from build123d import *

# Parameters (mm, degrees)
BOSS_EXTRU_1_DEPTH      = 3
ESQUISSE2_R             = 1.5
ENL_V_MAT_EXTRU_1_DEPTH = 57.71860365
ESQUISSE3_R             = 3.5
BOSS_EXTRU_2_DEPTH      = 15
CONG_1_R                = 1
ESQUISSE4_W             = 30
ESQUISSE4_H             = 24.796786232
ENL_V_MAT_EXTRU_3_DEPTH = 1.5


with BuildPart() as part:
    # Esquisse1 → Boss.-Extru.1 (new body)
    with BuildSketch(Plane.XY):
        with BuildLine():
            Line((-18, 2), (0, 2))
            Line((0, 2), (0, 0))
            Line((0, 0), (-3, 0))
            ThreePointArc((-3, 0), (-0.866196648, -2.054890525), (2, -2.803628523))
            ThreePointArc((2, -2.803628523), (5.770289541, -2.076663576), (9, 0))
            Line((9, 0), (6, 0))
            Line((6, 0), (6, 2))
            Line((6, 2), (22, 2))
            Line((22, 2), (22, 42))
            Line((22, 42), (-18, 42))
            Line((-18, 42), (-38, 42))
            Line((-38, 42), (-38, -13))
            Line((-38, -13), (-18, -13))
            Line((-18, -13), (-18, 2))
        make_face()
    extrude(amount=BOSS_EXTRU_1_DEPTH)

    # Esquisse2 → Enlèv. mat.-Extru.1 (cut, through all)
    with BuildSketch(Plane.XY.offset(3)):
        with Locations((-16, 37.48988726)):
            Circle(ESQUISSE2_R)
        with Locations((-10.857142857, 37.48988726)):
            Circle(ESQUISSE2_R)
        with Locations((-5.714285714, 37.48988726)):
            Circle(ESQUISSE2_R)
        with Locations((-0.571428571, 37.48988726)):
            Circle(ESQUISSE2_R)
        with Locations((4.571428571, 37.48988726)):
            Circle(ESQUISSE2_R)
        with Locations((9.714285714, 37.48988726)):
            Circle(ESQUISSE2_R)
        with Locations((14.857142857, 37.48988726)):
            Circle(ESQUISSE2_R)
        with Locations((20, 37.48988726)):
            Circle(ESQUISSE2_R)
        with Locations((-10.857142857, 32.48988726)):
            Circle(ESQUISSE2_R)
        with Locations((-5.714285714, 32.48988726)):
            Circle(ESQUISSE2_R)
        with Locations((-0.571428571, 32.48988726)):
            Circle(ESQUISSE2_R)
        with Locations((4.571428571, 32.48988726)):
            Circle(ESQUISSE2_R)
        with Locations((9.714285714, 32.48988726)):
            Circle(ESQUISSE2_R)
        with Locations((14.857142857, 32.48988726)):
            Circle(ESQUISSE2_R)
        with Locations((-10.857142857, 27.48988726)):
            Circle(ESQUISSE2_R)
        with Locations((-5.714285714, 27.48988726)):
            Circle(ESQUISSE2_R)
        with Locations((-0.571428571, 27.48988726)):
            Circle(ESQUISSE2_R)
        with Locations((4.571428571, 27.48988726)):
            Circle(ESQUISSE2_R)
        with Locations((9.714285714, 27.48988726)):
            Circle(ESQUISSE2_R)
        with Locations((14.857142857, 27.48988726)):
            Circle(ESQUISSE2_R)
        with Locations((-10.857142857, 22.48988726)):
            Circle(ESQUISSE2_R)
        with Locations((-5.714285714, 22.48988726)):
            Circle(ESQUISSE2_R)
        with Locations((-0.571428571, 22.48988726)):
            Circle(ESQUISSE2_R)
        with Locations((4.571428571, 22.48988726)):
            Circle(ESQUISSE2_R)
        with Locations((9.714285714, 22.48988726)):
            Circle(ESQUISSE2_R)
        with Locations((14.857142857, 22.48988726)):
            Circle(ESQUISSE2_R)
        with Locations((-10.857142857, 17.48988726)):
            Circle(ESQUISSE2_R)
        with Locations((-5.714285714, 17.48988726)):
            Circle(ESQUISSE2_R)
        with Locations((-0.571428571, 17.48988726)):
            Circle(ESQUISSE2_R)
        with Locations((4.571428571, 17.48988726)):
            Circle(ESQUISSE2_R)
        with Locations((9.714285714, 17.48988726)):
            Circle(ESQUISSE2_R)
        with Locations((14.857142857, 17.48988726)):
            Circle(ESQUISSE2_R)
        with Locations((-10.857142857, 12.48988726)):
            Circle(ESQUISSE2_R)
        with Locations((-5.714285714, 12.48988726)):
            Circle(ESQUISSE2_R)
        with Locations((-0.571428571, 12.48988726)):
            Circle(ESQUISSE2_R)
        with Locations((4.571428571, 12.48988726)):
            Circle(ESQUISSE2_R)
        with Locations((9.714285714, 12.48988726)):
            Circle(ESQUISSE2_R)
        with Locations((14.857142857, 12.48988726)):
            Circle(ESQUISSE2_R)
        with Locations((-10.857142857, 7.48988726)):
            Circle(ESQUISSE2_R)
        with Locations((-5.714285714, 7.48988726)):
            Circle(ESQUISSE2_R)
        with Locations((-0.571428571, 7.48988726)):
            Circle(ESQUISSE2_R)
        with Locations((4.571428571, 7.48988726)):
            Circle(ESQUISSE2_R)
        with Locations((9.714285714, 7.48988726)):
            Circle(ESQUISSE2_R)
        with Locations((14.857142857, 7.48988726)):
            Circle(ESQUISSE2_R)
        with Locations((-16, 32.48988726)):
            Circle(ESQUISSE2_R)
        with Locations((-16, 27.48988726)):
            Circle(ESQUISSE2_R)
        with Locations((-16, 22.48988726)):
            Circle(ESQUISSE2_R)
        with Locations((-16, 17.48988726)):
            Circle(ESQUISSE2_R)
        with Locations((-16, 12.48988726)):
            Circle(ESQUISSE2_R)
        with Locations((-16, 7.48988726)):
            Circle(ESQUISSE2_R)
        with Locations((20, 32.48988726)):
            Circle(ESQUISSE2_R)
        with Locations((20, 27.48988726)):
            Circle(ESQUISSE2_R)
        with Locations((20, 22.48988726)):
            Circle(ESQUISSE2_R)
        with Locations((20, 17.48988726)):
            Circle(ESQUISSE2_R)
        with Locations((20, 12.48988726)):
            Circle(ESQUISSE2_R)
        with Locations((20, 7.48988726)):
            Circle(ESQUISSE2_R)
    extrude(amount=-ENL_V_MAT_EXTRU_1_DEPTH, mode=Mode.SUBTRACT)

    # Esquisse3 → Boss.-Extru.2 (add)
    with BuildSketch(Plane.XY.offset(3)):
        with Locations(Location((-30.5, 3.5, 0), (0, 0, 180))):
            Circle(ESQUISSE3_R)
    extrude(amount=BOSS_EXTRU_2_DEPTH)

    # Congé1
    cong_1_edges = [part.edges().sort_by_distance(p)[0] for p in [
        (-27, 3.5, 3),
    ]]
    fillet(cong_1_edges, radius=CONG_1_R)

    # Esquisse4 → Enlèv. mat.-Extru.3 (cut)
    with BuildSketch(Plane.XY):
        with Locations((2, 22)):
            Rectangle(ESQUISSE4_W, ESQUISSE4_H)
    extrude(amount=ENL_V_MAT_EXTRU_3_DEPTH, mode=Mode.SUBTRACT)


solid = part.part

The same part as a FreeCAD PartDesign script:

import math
import FreeCAD as App
import Part
import Sketcher
from FreeCAD import Vector


def edges_at(feature, points):
    """Names of the edges that pass closest to the given points."""
    edges = feature.Shape.Edges
    near = lambda p: min(range(len(edges)), key=lambda i: edges[i].distToShape(Part.Vertex(*p))[0])
    return sorted({f"Edge{near(p) + 1}" for p in points})


def add_polygon(sketch, points):
    """Adds a closed chain of lines whose ends are joined by coincident constraints."""
    first, n = sketch.GeometryCount, len(points)
    for a, b in zip(points, points[1:] + points[:1]):
        sketch.addGeometry(Part.LineSegment(App.Vector(*a, 0), App.Vector(*b, 0)), False)
    for i in range(n):
        sketch.addConstraint(Sketcher.Constraint("Coincident", first + i, 2, first + (i + 1) % n, 1))

doc = App.newDocument("Part")
body = doc.addObject("PartDesign::Body", "Body")

# Sketch on XY plane
sketch1 = body.newObject("Sketcher::SketchObject", "Sketch")
sketch1.AttachmentSupport = (doc.getObject("XY_Plane"), [""])
sketch1.MapMode = "FlatFace"
sketch1.addGeometry([
    Part.LineSegment(Vector(-18, 2, 0), Vector(0, 2, 0)),  # 0
    Part.LineSegment(Vector(0, 2, 0), Vector(0, 0, 0)),  # 1
    Part.LineSegment(Vector(0, 0, 0), Vector(-3, 0, 0)),  # 2
    Part.ArcOfCircle(Part.Circle(Vector(2, 3.1, 0), Vector(0, 0, 1), 5.9), math.radians(-149), math.radians(-90)),  # 3
    Part.ArcOfCircle(Part.Circle(Vector(2, 7.3, 0), Vector(0, 0, 1), 10.1), math.radians(-90), math.radians(-46)),  # 4
    Part.LineSegment(Vector(9, 0, 0), Vector(6, 0, 0)),  # 5
    Part.LineSegment(Vector(6, 0, 0), Vector(6, 2, 0)),  # 6
    Part.LineSegment(Vector(6, 2, 0), Vector(22, 2, 0)),  # 7
    Part.LineSegment(Vector(22, 2, 0), Vector(22, 42, 0)),  # 8
    Part.LineSegment(Vector(22, 42, 0), Vector(-38, 42, 0)),  # 9
    Part.LineSegment(Vector(-38, 42, 0), Vector(-38, -13, 0)),  # 10
    Part.LineSegment(Vector(-38, -13, 0), Vector(-18, -13, 0)),  # 11
    Part.LineSegment(Vector(-18, -13, 0), Vector(-18, 2, 0)),  # 12
], False)
sketch1.addConstraint([
    Sketcher.Constraint("Coincident", 0, 2, 1, 1),
    Sketcher.Constraint("Coincident", 1, 2, 2, 1),
    Sketcher.Constraint("Coincident", 2, 2, 3, 1),
    Sketcher.Constraint("Tangent", 3, 2, 4, 1),
    Sketcher.Constraint("Coincident", 4, 2, 5, 1),
    Sketcher.Constraint("Coincident", 5, 2, 6, 1),
    Sketcher.Constraint("Coincident", 6, 2, 7, 1),
    Sketcher.Constraint("Coincident", 7, 2, 8, 1),
    Sketcher.Constraint("Coincident", 8, 2, 9, 1),
    Sketcher.Constraint("Coincident", 9, 2, 10, 1),
    Sketcher.Constraint("Coincident", 10, 2, 11, 1),
    Sketcher.Constraint("Coincident", 11, 2, 12, 1),
    Sketcher.Constraint("Coincident", 12, 2, 0, 1),
    Sketcher.Constraint("Horizontal", 0),
    Sketcher.Constraint("Vertical", 1),
    Sketcher.Constraint("Horizontal", 2),
    Sketcher.Constraint("Horizontal", 5),
    Sketcher.Constraint("Vertical", 6),
    Sketcher.Constraint("Horizontal", 7),
    Sketcher.Constraint("Vertical", 8),
    Sketcher.Constraint("Horizontal", 9),
    Sketcher.Constraint("Vertical", 10),
    Sketcher.Constraint("Horizontal", 11),
    Sketcher.Constraint("Vertical", 12),
    Sketcher.Constraint("Coincident", 1, 2, -1, 1),
    Sketcher.Constraint("PointOnObject", 4, 2, -1),
    Sketcher.Constraint("Horizontal", 0, 2, 6, 2),
    Sketcher.Constraint("Vertical", 3, 3, 4, 3),
    Sketcher.Constraint("Equal", 2, 5),
    Sketcher.Constraint("DistanceX", 0, 1, 0, 2, 18.0),
    Sketcher.Constraint("DistanceX", 2, 2, 2, 1, 3.0),
    Sketcher.Constraint("DistanceX", 7, 1, 7, 2, 16.0),
    Sketcher.Constraint("DistanceX", 9, 2, 9, 1, 60.0),
    Sketcher.Constraint("DistanceX", 11, 1, 11, 2, 20.0),
    Sketcher.Constraint("DistanceY", 1, 2, 1, 1, 2.0),
    Sketcher.Constraint("DistanceY", 8, 1, 8, 2, 40.0),
    Sketcher.Constraint("DistanceY", 10, 2, 10, 1, 55.0),
    Sketcher.Constraint("DistanceX", -1, 1, 3, 3, 2.0),
    Sketcher.Constraint("Radius", 4, 10.14049),
])
pad1 = body.newObject("PartDesign::Pad", "Pad")
pad1.Profile = sketch1
pad1.Length = 3

# Sketch on XY plane
sketch2 = body.newObject("Sketcher::SketchObject", "Sketch001")
sketch2.AttachmentSupport = (doc.getObject("XY_Plane"), [""])
sketch2.MapMode = "FlatFace"
sketch2.AttachmentOffset = App.Placement(Vector(0, 0, 3), App.Rotation())
sketch2.addGeometry([
    Part.Circle(Vector(-16, 37.5, 0), Vector(0, 0, 1), 1.5),  # 0
    Part.Circle(Vector(-10.9, 37.5, 0), Vector(0, 0, 1), 1.5),  # 1
    Part.Circle(Vector(-5.7, 37.5, 0), Vector(0, 0, 1), 1.5),  # 2
    Part.Circle(Vector(-0.6, 37.5, 0), Vector(0, 0, 1), 1.5),  # 3
    Part.Circle(Vector(4.6, 37.5, 0), Vector(0, 0, 1), 1.5),  # 4
    Part.Circle(Vector(9.7, 37.5, 0), Vector(0, 0, 1), 1.5),  # 5
    Part.Circle(Vector(14.9, 37.5, 0), Vector(0, 0, 1), 1.5),  # 6
    Part.Circle(Vector(20, 37.5, 0), Vector(0, 0, 1), 1.5),  # 7
    Part.Circle(Vector(-10.9, 32.5, 0), Vector(0, 0, 1), 1.5),  # 8
    Part.Circle(Vector(-5.7, 32.5, 0), Vector(0, 0, 1), 1.5),  # 9
    Part.Circle(Vector(-0.6, 32.5, 0), Vector(0, 0, 1), 1.5),  # 10
    Part.Circle(Vector(4.6, 32.5, 0), Vector(0, 0, 1), 1.5),  # 11
    Part.Circle(Vector(9.7, 32.5, 0), Vector(0, 0, 1), 1.5),  # 12
    Part.Circle(Vector(14.9, 32.5, 0), Vector(0, 0, 1), 1.5),  # 13
    Part.Circle(Vector(-10.9, 27.5, 0), Vector(0, 0, 1), 1.5),  # 14
    Part.Circle(Vector(-5.7, 27.5, 0), Vector(0, 0, 1), 1.5),  # 15
    Part.Circle(Vector(-0.6, 27.5, 0), Vector(0, 0, 1), 1.5),  # 16
    Part.Circle(Vector(4.6, 27.5, 0), Vector(0, 0, 1), 1.5),  # 17
    Part.Circle(Vector(9.7, 27.5, 0), Vector(0, 0, 1), 1.5),  # 18
    Part.Circle(Vector(14.9, 27.5, 0), Vector(0, 0, 1), 1.5),  # 19
    Part.Circle(Vector(-10.9, 22.5, 0), Vector(0, 0, 1), 1.5),  # 20
    Part.Circle(Vector(-5.7, 22.5, 0), Vector(0, 0, 1), 1.5),  # 21
    Part.Circle(Vector(-0.6, 22.5, 0), Vector(0, 0, 1), 1.5),  # 22
    Part.Circle(Vector(4.6, 22.5, 0), Vector(0, 0, 1), 1.5),  # 23
    Part.Circle(Vector(9.7, 22.5, 0), Vector(0, 0, 1), 1.5),  # 24
    Part.Circle(Vector(14.9, 22.5, 0), Vector(0, 0, 1), 1.5),  # 25
    Part.Circle(Vector(-10.9, 17.5, 0), Vector(0, 0, 1), 1.5),  # 26
    Part.Circle(Vector(-5.7, 17.5, 0), Vector(0, 0, 1), 1.5),  # 27
    Part.Circle(Vector(-0.6, 17.5, 0), Vector(0, 0, 1), 1.5),  # 28
    Part.Circle(Vector(4.6, 17.5, 0), Vector(0, 0, 1), 1.5),  # 29
    Part.Circle(Vector(9.7, 17.5, 0), Vector(0, 0, 1), 1.5),  # 30
    Part.Circle(Vector(14.9, 17.5, 0), Vector(0, 0, 1), 1.5),  # 31
    Part.Circle(Vector(-10.9, 12.5, 0), Vector(0, 0, 1), 1.5),  # 32
    Part.Circle(Vector(-5.7, 12.5, 0), Vector(0, 0, 1), 1.5),  # 33
    Part.Circle(Vector(-0.6, 12.5, 0), Vector(0, 0, 1), 1.5),  # 34
    Part.Circle(Vector(4.6, 12.5, 0), Vector(0, 0, 1), 1.5),  # 35
    Part.Circle(Vector(9.7, 12.5, 0), Vector(0, 0, 1), 1.5),  # 36
    Part.Circle(Vector(14.9, 12.5, 0), Vector(0, 0, 1), 1.5),  # 37
    Part.Circle(Vector(-10.9, 7.5, 0), Vector(0, 0, 1), 1.5),  # 38
    Part.Circle(Vector(-5.7, 7.5, 0), Vector(0, 0, 1), 1.5),  # 39
    Part.Circle(Vector(-0.6, 7.5, 0), Vector(0, 0, 1), 1.5),  # 40
    Part.Circle(Vector(4.6, 7.5, 0), Vector(0, 0, 1), 1.5),  # 41
    Part.Circle(Vector(9.7, 7.5, 0), Vector(0, 0, 1), 1.5),  # 42
    Part.Circle(Vector(14.9, 7.5, 0), Vector(0, 0, 1), 1.5),  # 43
    Part.Circle(Vector(-16, 32.5, 0), Vector(0, 0, 1), 1.5),  # 44
    Part.Circle(Vector(-16, 27.5, 0), Vector(0, 0, 1), 1.5),  # 45
    Part.Circle(Vector(-16, 22.5, 0), Vector(0, 0, 1), 1.5),  # 46
    Part.Circle(Vector(-16, 17.5, 0), Vector(0, 0, 1), 1.5),  # 47
    Part.Circle(Vector(-16, 12.5, 0), Vector(0, 0, 1), 1.5),  # 48
    Part.Circle(Vector(-16, 7.5, 0), Vector(0, 0, 1), 1.5),  # 49
    Part.Circle(Vector(20, 32.5, 0), Vector(0, 0, 1), 1.5),  # 50
    Part.Circle(Vector(20, 27.5, 0), Vector(0, 0, 1), 1.5),  # 51
    Part.Circle(Vector(20, 22.5, 0), Vector(0, 0, 1), 1.5),  # 52
    Part.Circle(Vector(20, 17.5, 0), Vector(0, 0, 1), 1.5),  # 53
    Part.Circle(Vector(20, 12.5, 0), Vector(0, 0, 1), 1.5),  # 54
    Part.Circle(Vector(20, 7.5, 0), Vector(0, 0, 1), 1.5),  # 55
], False)
sketch2.addConstraint([
    Sketcher.Constraint("Equal", 0, 1),
    Sketcher.Constraint("Equal", 1, 2),
    Sketcher.Constraint("Equal", 2, 3),
    Sketcher.Constraint("Equal", 3, 4),
    Sketcher.Constraint("Equal", 4, 5),
    Sketcher.Constraint("Equal", 5, 6),
    Sketcher.Constraint("Equal", 6, 7),
    Sketcher.Constraint("Equal", 7, 8),
    Sketcher.Constraint("Equal", 8, 9),
    Sketcher.Constraint("Equal", 9, 10),
    Sketcher.Constraint("Equal", 10, 11),
    Sketcher.Constraint("Equal", 11, 12),
    Sketcher.Constraint("Equal", 12, 13),
    Sketcher.Constraint("Equal", 13, 14),
    Sketcher.Constraint("Equal", 14, 15),
    Sketcher.Constraint("Equal", 15, 16),
    Sketcher.Constraint("Equal", 16, 17),
    Sketcher.Constraint("Equal", 17, 18),
    Sketcher.Constraint("Equal", 18, 19),
    Sketcher.Constraint("Equal", 19, 20),
    Sketcher.Constraint("Equal", 20, 21),
    Sketcher.Constraint("Equal", 21, 22),
    Sketcher.Constraint("Equal", 22, 23),
    Sketcher.Constraint("Equal", 23, 24),
    Sketcher.Constraint("Equal", 24, 25),
    Sketcher.Constraint("Equal", 25, 26),
    Sketcher.Constraint("Equal", 26, 27),
    Sketcher.Constraint("Equal", 27, 28),
    Sketcher.Constraint("Equal", 28, 29),
    Sketcher.Constraint("Equal", 29, 30),
    Sketcher.Constraint("Equal", 30, 31),
    Sketcher.Constraint("Equal", 31, 32),
    Sketcher.Constraint("Equal", 32, 33),
    Sketcher.Constraint("Equal", 33, 34),
    Sketcher.Constraint("Equal", 34, 35),
    Sketcher.Constraint("Equal", 35, 36),
    Sketcher.Constraint("Equal", 36, 37),
    Sketcher.Constraint("Equal", 37, 38),
    Sketcher.Constraint("Equal", 38, 39),
    Sketcher.Constraint("Equal", 39, 40),
    Sketcher.Constraint("Equal", 40, 41),
    Sketcher.Constraint("Equal", 41, 42),
    Sketcher.Constraint("Equal", 42, 43),
    Sketcher.Constraint("Equal", 43, 44),
    Sketcher.Constraint("Equal", 44, 45),
    Sketcher.Constraint("Equal", 45, 46),
    Sketcher.Constraint("Equal", 46, 47),
    Sketcher.Constraint("Equal", 47, 48),
    Sketcher.Constraint("Equal", 48, 49),
    Sketcher.Constraint("Equal", 49, 50),
    Sketcher.Constraint("Equal", 50, 51),
    Sketcher.Constraint("Equal", 51, 52),
    Sketcher.Constraint("Equal", 52, 53),
    Sketcher.Constraint("Equal", 53, 54),
    Sketcher.Constraint("Equal", 54, 55),
    Sketcher.Constraint("Horizontal", 0, 3, 1, 3),
    Sketcher.Constraint("Horizontal", 1, 3, 2, 3),
    Sketcher.Constraint("Horizontal", 2, 3, 3, 3),
    Sketcher.Constraint("Horizontal", 3, 3, 4, 3),
    Sketcher.Constraint("Horizontal", 4, 3, 5, 3),
    Sketcher.Constraint("Horizontal", 5, 3, 6, 3),
    Sketcher.Constraint("Horizontal", 6, 3, 7, 3),
    Sketcher.Constraint("Horizontal", 8, 3, 9, 3),
    Sketcher.Constraint("Horizontal", 9, 3, 10, 3),
    Sketcher.Constraint("Horizontal", 10, 3, 11, 3),
    Sketcher.Constraint("Horizontal", 11, 3, 12, 3),
    Sketcher.Constraint("Horizontal", 12, 3, 13, 3),
    Sketcher.Constraint("Horizontal", 14, 3, 15, 3),
    Sketcher.Constraint("Horizontal", 15, 3, 16, 3),
    Sketcher.Constraint("Horizontal", 16, 3, 17, 3),
    Sketcher.Constraint("Horizontal", 17, 3, 18, 3),
    Sketcher.Constraint("Horizontal", 18, 3, 19, 3),
    Sketcher.Constraint("Horizontal", 20, 3, 21, 3),
    Sketcher.Constraint("Horizontal", 21, 3, 22, 3),
    Sketcher.Constraint("Horizontal", 22, 3, 23, 3),
    Sketcher.Constraint("Horizontal", 23, 3, 24, 3),
    Sketcher.Constraint("Horizontal", 24, 3, 25, 3),
    Sketcher.Constraint("Horizontal", 26, 3, 27, 3),
    Sketcher.Constraint("Horizontal", 27, 3, 28, 3),
    Sketcher.Constraint("Horizontal", 28, 3, 29, 3),
    Sketcher.Constraint("Horizontal", 29, 3, 30, 3),
    Sketcher.Constraint("Horizontal", 30, 3, 31, 3),
    Sketcher.Constraint("Horizontal", 32, 3, 33, 3),
    Sketcher.Constraint("Horizontal", 33, 3, 34, 3),
    Sketcher.Constraint("Horizontal", 34, 3, 35, 3),
    Sketcher.Constraint("Horizontal", 35, 3, 36, 3),
    Sketcher.Constraint("Horizontal", 36, 3, 37, 3),
    Sketcher.Constraint("Horizontal", 38, 3, 39, 3),
    Sketcher.Constraint("Horizontal", 39, 3, 40, 3),
    Sketcher.Constraint("Horizontal", 40, 3, 41, 3),
    Sketcher.Constraint("Horizontal", 41, 3, 42, 3),
    Sketcher.Constraint("Horizontal", 42, 3, 43, 3),
    Sketcher.Constraint("Horizontal", 13, 3, 44, 3),
    Sketcher.Constraint("Horizontal", 19, 3, 45, 3),
    Sketcher.Constraint("Horizontal", 25, 3, 46, 3),
    Sketcher.Constraint("Horizontal", 31, 3, 47, 3),
    Sketcher.Constraint("Horizontal", 37, 3, 48, 3),
    Sketcher.Constraint("Horizontal", 43, 3, 49, 3),
    Sketcher.Constraint("Horizontal", 44, 3, 50, 3),
    Sketcher.Constraint("Horizontal", 45, 3, 51, 3),
    Sketcher.Constraint("Horizontal", 46, 3, 52, 3),
    Sketcher.Constraint("Horizontal", 47, 3, 53, 3),
    Sketcher.Constraint("Horizontal", 48, 3, 54, 3),
    Sketcher.Constraint("Horizontal", 49, 3, 55, 3),
    Sketcher.Constraint("Vertical", 1, 3, 8, 3),
    Sketcher.Constraint("Vertical", 2, 3, 9, 3),
    Sketcher.Constraint("Vertical", 3, 3, 10, 3),
    Sketcher.Constraint("Vertical", 4, 3, 11, 3),
    Sketcher.Constraint("Vertical", 5, 3, 12, 3),
    Sketcher.Constraint("Vertical", 6, 3, 13, 3),
    Sketcher.Constraint("Vertical", 8, 3, 14, 3),
    Sketcher.Constraint("Vertical", 9, 3, 15, 3),
    Sketcher.Constraint("Vertical", 10, 3, 16, 3),
    Sketcher.Constraint("Vertical", 11, 3, 17, 3),
    Sketcher.Constraint("Vertical", 12, 3, 18, 3),
    Sketcher.Constraint("Vertical", 13, 3, 19, 3),
    Sketcher.Constraint("Vertical", 14, 3, 20, 3),
    Sketcher.Constraint("Vertical", 15, 3, 21, 3),
    Sketcher.Constraint("Vertical", 16, 3, 22, 3),
    Sketcher.Constraint("Vertical", 17, 3, 23, 3),
    Sketcher.Constraint("Vertical", 18, 3, 24, 3),
    Sketcher.Constraint("Vertical", 19, 3, 25, 3),
    Sketcher.Constraint("Vertical", 20, 3, 26, 3),
    Sketcher.Constraint("Vertical", 21, 3, 27, 3),
    Sketcher.Constraint("Vertical", 22, 3, 28, 3),
    Sketcher.Constraint("Vertical", 23, 3, 29, 3),
    Sketcher.Constraint("Vertical", 24, 3, 30, 3),
    Sketcher.Constraint("Vertical", 25, 3, 31, 3),
    Sketcher.Constraint("Vertical", 26, 3, 32, 3),
    Sketcher.Constraint("Vertical", 27, 3, 33, 3),
    Sketcher.Constraint("Vertical", 28, 3, 34, 3),
    Sketcher.Constraint("Vertical", 29, 3, 35, 3),
    Sketcher.Constraint("Vertical", 30, 3, 36, 3),
    Sketcher.Constraint("Vertical", 31, 3, 37, 3),
    Sketcher.Constraint("Vertical", 32, 3, 38, 3),
    Sketcher.Constraint("Vertical", 33, 3, 39, 3),
    Sketcher.Constraint("Vertical", 34, 3, 40, 3),
    Sketcher.Constraint("Vertical", 35, 3, 41, 3),
    Sketcher.Constraint("Vertical", 36, 3, 42, 3),
    Sketcher.Constraint("Vertical", 37, 3, 43, 3),
    Sketcher.Constraint("Vertical", 0, 3, 44, 3),
    Sketcher.Constraint("Vertical", 44, 3, 45, 3),
    Sketcher.Constraint("Vertical", 45, 3, 46, 3),
    Sketcher.Constraint("Vertical", 46, 3, 47, 3),
    Sketcher.Constraint("Vertical", 47, 3, 48, 3),
    Sketcher.Constraint("Vertical", 48, 3, 49, 3),
    Sketcher.Constraint("Vertical", 7, 3, 50, 3),
    Sketcher.Constraint("Vertical", 50, 3, 51, 3),
    Sketcher.Constraint("Vertical", 51, 3, 52, 3),
    Sketcher.Constraint("Vertical", 52, 3, 53, 3),
    Sketcher.Constraint("Vertical", 53, 3, 54, 3),
    Sketcher.Constraint("Vertical", 54, 3, 55, 3),
    Sketcher.Constraint("Diameter", 0, 3.0),
    Sketcher.Constraint("DistanceX", 0, 3, -1, 1, 16.0),
    Sketcher.Constraint("DistanceX", -1, 1, 7, 3, 20.0),
    Sketcher.Constraint("DistanceY", 8, 3, 1, 3, 5.0),
    Sketcher.Constraint("DistanceY", 14, 3, 8, 3, 5.0),
    Sketcher.Constraint("DistanceY", 20, 3, 14, 3, 5.0),
    Sketcher.Constraint("DistanceY", 26, 3, 20, 3, 5.0),
    Sketcher.Constraint("DistanceY", 32, 3, 26, 3, 5.0),
    Sketcher.Constraint("DistanceY", 38, 3, 32, 3, 5.0),
    Sketcher.Constraint("DistanceX", 3, 3, -1, 1, 0.571429),
    Sketcher.Constraint("DistanceX", -1, 1, 4, 3, 4.571429),
    Sketcher.Constraint("DistanceX", 1, 3, 4, 3, 15.428571),
    Sketcher.Constraint("DistanceX", 2, 3, 5, 3, 15.428571),
    Sketcher.Constraint("DistanceX", 1, 3, 5, 3, 20.571429),
    Sketcher.Constraint("DistanceX", 3, 3, 6, 3, 15.428571),
    Sketcher.Constraint("DistanceY", -1, 1, 0, 3, 37.489887),
])
pocket1 = body.newObject("PartDesign::Pocket", "Pocket")
pocket1.Profile = sketch2
pocket1.Type = "ThroughAll"

# Sketch on XY plane
sketch3 = body.newObject("Sketcher::SketchObject", "Sketch002")
sketch3.AttachmentSupport = (doc.getObject("XY_Plane"), [""])
sketch3.MapMode = "FlatFace"
sketch3.AttachmentOffset = App.Placement(Vector(0, 0, 3), App.Rotation())
sketch3.addGeometry(Part.Circle(Vector(-30.5, 3.5, 0), Vector(0, 0, 1), 3.5), False)
sketch3.addConstraint([
    Sketcher.Constraint("Diameter", 0, 7.0),
    Sketcher.Constraint("DistanceX", 0, 3, -1, 1, 30.5),
    Sketcher.Constraint("DistanceY", -1, 1, 0, 3, 3.5),
])
pad2 = body.newObject("PartDesign::Pad", "Pad001")
pad2.Profile = sketch3
pad2.Length = 15
doc.recompute()

fillet = body.newObject("PartDesign::Fillet", "Fillet")
fillet.Base = (pad2, edges_at(pad2, [(-27, 3.5, 3)]))
fillet.Radius = 1

# Sketch on XY plane
sketch4 = body.newObject("Sketcher::SketchObject", "Sketch003")
sketch4.AttachmentSupport = (doc.getObject("XY_Plane"), [""])
sketch4.MapMode = "FlatFace"
add_polygon(sketch4, [(-13, 34), (-13, 10), (17, 10), (17, 34)])  # lines 0-3
sketch4.addConstraint([
    Sketcher.Constraint("Vertical", 0),
    Sketcher.Constraint("Horizontal", 1),
    Sketcher.Constraint("Vertical", 2),
    Sketcher.Constraint("Horizontal", 3),
    Sketcher.Constraint("DistanceX", 1, 1, 1, 2, 30.0),
    Sketcher.Constraint("DistanceX", 0, 2, -1, 1, 13.0),
    Sketcher.Constraint("DistanceY", 0, 2, 0, 1, 24.796786),
    Sketcher.Constraint("DistanceY", -1, 1, 0, 2, 9.601607),
])
pocket2 = body.newObject("PartDesign::Pocket", "Pocket001")
pocket2.Profile = sketch4
pocket2.Length = 1.5
pocket2.Reversed = True

doc.recompute()
